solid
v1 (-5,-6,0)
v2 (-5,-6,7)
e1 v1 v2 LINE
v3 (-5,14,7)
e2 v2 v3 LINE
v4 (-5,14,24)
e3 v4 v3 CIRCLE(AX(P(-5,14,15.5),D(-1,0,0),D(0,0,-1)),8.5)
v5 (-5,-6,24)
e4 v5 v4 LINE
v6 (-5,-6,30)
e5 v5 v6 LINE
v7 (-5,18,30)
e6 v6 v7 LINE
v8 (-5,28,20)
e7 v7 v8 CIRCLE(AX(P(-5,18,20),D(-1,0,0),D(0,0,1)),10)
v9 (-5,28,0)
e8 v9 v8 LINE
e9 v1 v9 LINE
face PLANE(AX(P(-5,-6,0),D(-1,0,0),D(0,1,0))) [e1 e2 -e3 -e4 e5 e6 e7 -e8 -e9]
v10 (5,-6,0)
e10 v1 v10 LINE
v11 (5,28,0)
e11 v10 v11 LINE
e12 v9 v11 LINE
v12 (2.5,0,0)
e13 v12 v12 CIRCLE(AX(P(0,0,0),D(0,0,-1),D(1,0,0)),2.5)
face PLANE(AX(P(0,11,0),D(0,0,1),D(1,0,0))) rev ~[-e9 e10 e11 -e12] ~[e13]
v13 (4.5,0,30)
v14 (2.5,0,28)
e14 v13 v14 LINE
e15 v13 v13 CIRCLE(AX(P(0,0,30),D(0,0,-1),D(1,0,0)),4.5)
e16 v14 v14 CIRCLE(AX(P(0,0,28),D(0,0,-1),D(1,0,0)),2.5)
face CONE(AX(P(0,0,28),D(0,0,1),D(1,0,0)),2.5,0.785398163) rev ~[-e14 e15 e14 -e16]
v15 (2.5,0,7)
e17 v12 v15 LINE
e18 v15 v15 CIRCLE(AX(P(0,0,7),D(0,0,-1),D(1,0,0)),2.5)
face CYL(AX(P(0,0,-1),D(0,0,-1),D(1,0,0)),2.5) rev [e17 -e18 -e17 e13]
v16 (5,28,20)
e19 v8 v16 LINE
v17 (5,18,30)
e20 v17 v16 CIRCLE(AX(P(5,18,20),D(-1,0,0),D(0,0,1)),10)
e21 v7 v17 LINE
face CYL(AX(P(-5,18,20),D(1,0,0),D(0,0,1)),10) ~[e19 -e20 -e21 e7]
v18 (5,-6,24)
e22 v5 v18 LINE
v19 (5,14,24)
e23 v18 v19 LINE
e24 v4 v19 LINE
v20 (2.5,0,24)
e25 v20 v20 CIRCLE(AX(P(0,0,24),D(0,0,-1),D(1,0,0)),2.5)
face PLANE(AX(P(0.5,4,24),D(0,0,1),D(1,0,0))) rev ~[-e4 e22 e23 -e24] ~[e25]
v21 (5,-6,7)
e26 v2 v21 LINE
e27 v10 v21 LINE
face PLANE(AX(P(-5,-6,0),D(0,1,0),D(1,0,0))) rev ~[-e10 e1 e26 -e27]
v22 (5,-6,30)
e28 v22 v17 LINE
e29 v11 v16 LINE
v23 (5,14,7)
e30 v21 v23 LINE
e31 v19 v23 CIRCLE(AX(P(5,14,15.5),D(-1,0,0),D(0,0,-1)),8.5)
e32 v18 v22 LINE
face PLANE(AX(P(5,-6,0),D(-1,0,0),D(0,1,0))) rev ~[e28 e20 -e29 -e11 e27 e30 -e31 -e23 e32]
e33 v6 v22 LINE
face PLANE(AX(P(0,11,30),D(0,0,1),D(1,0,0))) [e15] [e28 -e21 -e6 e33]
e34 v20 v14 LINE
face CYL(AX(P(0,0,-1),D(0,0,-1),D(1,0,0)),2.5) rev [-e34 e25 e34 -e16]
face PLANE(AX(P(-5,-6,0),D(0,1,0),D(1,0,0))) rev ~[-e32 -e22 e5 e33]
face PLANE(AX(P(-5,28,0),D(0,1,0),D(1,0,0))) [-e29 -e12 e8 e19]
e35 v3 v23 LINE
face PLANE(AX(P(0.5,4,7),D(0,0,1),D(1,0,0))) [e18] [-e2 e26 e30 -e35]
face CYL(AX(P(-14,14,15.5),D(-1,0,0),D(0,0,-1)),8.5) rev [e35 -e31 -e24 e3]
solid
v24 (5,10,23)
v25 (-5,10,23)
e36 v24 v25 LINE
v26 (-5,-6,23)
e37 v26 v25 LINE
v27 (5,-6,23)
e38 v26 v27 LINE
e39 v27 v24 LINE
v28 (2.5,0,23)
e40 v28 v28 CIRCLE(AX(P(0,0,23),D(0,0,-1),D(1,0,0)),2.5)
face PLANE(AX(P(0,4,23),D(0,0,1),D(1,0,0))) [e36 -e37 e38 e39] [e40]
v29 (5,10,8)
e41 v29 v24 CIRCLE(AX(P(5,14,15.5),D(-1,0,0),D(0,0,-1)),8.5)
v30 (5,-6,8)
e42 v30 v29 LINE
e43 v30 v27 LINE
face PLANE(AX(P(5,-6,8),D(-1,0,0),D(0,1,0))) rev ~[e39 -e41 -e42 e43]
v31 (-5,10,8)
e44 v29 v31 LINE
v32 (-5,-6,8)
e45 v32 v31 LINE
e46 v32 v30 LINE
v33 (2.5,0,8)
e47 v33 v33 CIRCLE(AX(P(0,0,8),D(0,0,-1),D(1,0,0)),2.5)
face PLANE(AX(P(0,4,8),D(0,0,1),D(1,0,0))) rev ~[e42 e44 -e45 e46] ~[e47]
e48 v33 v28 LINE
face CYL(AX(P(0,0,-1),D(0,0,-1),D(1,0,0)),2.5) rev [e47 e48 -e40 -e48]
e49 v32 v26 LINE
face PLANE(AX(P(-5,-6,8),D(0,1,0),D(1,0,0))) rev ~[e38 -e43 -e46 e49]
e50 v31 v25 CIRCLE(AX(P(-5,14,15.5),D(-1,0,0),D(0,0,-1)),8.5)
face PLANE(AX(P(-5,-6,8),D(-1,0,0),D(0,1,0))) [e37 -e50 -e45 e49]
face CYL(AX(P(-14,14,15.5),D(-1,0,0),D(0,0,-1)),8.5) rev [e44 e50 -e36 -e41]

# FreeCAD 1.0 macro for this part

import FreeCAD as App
import Part
import Sketcher
from FreeCAD import Vector


def edges_at(feature, points):
    """Names of the edges that pass closest to the given points."""
    edges = feature.Shape.Edges
    near = lambda p: min(range(len(edges)), key=lambda i: edges[i].distToShape(Part.Vertex(*p))[0])
    return sorted({f"Edge{near(p) + 1}" for p in points})

doc = App.newDocument("Part")
body = doc.addObject("PartDesign::Body", "Body")

# Sketch on XY plane
sketch1 = doc.addObject("Sketcher::SketchObject", "Sketch")
body.addObject(sketch1)
sketch1.AttachmentSupport = (doc.XY_Plane, [""])
sketch1.MapMode = "FlatFace"
sketch1.addGeometry(Part.Circle(Vector(0, 0, 0), Vector(0, 0, 1), 8), False)
sketch1.addConstraint([
    Sketcher.Constraint("Coincident", 0, 3, -1, 1),
    Sketcher.Constraint("Diameter", 0, 17.0),
])
pad1 = doc.addObject("PartDesign::Pad", "Pad")
body.addObject(pad1)
pad1.Profile = sketch1
pad1.Length = 30
body2 = doc.addObject("PartDesign::Body", "Body001")
doc.recompute()

body.Placement = App.Placement(Vector(0, 0, 0), App.Rotation(Vector(0, 1, 0), 90))
boolean = doc.addObject("PartDesign::Boolean", "Boolean")
body2.addObject(boolean)
boolean.Type = "Fuse"
boolean.addObjects([body])
body3 = doc.addObject("PartDesign::Body", "Body002")
doc.recompute()

body2.Placement = App.Placement(Vector(-14, 14, 15.5), App.Rotation(Vector(0, 0, 1), 0))
boolean2 = doc.addObject("PartDesign::Boolean", "Boolean001")
body3.addObject(boolean2)
boolean2.Type = "Fuse"
boolean2.addObjects([body2])
body4 = doc.addObject("PartDesign::Body", "Body003")

# Sketch on XY plane
sketch2 = doc.addObject("Sketcher::SketchObject", "Sketch001")
body4.addObject(sketch2)
sketch2.AttachmentSupport = (doc.getObject("XY_Plane003"), [""])
sketch2.MapMode = "FlatFace"
sketch2.AttachmentOffset = App.Placement(Vector(0, 0, -1), App.Rotation())
sketch2.addGeometry(Part.Circle(Vector(0, 0, 0), Vector(0, 0, 1), 2.5), False)
sketch2.addConstraint([
    Sketcher.Constraint("Coincident", 0, 3, -1, 1),
    Sketcher.Constraint("Diameter", 0, 5.0),
])
pad2 = doc.addObject("PartDesign::Pad", "Pad001")
body4.addObject(pad2)
pad2.Profile = sketch2
pad2.Length = 37
body5 = doc.addObject("PartDesign::Body", "Body004")

# Sketch on XY plane
sketch3 = doc.addObject("Sketcher::SketchObject", "Sketch002")
body5.addObject(sketch3)
sketch3.AttachmentSupport = (doc.getObject("XY_Plane004"), [""])
sketch3.MapMode = "FlatFace"
sketch3.AttachmentOffset = App.Placement(Vector(0, 0, 7), App.Rotation())
sketch3.addGeometry([
    Part.LineSegment(Vector(-7, 14, 0), Vector(-7, -6, 0)),
    Part.LineSegment(Vector(-7, -6, 0), Vector(8, -6, 0)),
    Part.LineSegment(Vector(8, -6, 0), Vector(8, 14, 0)),
    Part.LineSegment(Vector(8, 14, 0), Vector(-7, 14, 0)),
], False)
sketch3.addConstraint([
    Sketcher.Constraint("Coincident", 0, 2, 1, 1),
    Sketcher.Constraint("Coincident", 1, 2, 2, 1),
    Sketcher.Constraint("Coincident", 2, 2, 3, 1),
    Sketcher.Constraint("Coincident", 3, 2, 0, 1),
    Sketcher.Constraint("Vertical", 0),
    Sketcher.Constraint("Horizontal", 1),
    Sketcher.Constraint("Vertical", 2),
    Sketcher.Constraint("Horizontal", 3),
    Sketcher.Constraint("DistanceX", 1, 1, 1, 2, 15.0),
    Sketcher.Constraint("DistanceY", 0, 2, 0, 1, 20.0),
    Sketcher.Constraint("DistanceX", 0, 2, -1, 1, 7.0),
    Sketcher.Constraint("DistanceY", 0, 2, -1, 1, 6.0),
])
pad3 = doc.addObject("PartDesign::Pad", "Pad002")
body5.addObject(pad3)
pad3.Profile = sketch3
pad3.Length = 17
doc.recompute()

boolean3 = doc.addObject("PartDesign::Boolean", "Boolean002")
body5.addObject(boolean3)
boolean3.Type = "Fuse"
boolean3.addObjects([body3])
doc.recompute()

boolean4 = doc.addObject("PartDesign::Boolean", "Boolean003")
body5.addObject(boolean4)
boolean4.Type = "Fuse"
boolean4.addObjects([body4])
body6 = doc.addObject("PartDesign::Body", "Body005")

# Sketch on XY plane
sketch4 = doc.addObject("Sketcher::SketchObject", "Sketch003")
body6.addObject(sketch4)
sketch4.AttachmentSupport = (doc.getObject("XY_Plane005"), [""])
sketch4.MapMode = "FlatFace"
sketch4.addGeometry([
    Part.LineSegment(Vector(-5, 28, 0), Vector(-5, -6, 0)),
    Part.LineSegment(Vector(-5, -6, 0), Vector(5, -6, 0)),
    Part.LineSegment(Vector(5, -6, 0), Vector(5, 28, 0)),
    Part.LineSegment(Vector(5, 28, 0), Vector(-5, 28, 0)),
], False)
sketch4.addConstraint([
    Sketcher.Constraint("Coincident", 0, 2, 1, 1),
    Sketcher.Constraint("Coincident", 1, 2, 2, 1),
    Sketcher.Constraint("Coincident", 2, 2, 3, 1),
    Sketcher.Constraint("Coincident", 3, 2, 0, 1),
    Sketcher.Constraint("Vertical", 0),
    Sketcher.Constraint("Horizontal", 1),
    Sketcher.Constraint("Vertical", 2),
    Sketcher.Constraint("Horizontal", 3),
    Sketcher.Constraint("DistanceX", 1, 1, 1, 2, 10.0),
    Sketcher.Constraint("DistanceY", 0, 2, 0, 1, 34.0),
    Sketcher.Constraint("DistanceX", 0, 2, -1, 1, 5.0),
    Sketcher.Constraint("DistanceY", 0, 2, -1, 1, 6.0),
])
pad4 = doc.addObject("PartDesign::Pad", "Pad003")
body6.addObject(pad4)
pad4.Profile = sketch4
pad4.Length = 30
doc.recompute()

boolean5 = doc.addObject("PartDesign::Boolean", "Boolean004")
body6.addObject(boolean5)
boolean5.Type = "Cut"
boolean5.addObjects([body5])
doc.recompute()

chamfer = doc.addObject("PartDesign::Chamfer", "Chamfer")
body6.addObject(chamfer)
chamfer.Base = (boolean5, edges_at(boolean5, [(-2.5, 0, 30)]))
chamfer.Size = 2
doc.recompute()

fillet = doc.addObject("PartDesign::Fillet", "Fillet")
body6.addObject(fillet)
fillet.Base = (chamfer, edges_at(chamfer, [(0, 28, 30)]))
fillet.Radius = 10
body7 = doc.addObject("PartDesign::Body", "Body006")

# Sketch on XY plane
sketch5 = doc.addObject("Sketcher::SketchObject", "Sketch004")
body7.addObject(sketch5)
sketch5.AttachmentSupport = (doc.getObject("XY_Plane006"), [""])
sketch5.MapMode = "FlatFace"
sketch5.AttachmentOffset = App.Placement(Vector(0, 0, -1), App.Rotation())
sketch5.addGeometry(Part.Circle(Vector(0, 0, 0), Vector(0, 0, 1), 2.5), False)
sketch5.addConstraint([
    Sketcher.Constraint("Coincident", 0, 3, -1, 1),
    Sketcher.Constraint("Diameter", 0, 5.0),
])
pad5 = doc.addObject("PartDesign::Pad", "Pad004")
body7.addObject(pad5)
pad5.Profile = sketch5
pad5.Length = 37
body8 = doc.addObject("PartDesign::Body", "Body007")

# Sketch on XY plane
sketch6 = doc.addObject("Sketcher::SketchObject", "Sketch005")
body8.addObject(sketch6)
sketch6.AttachmentSupport = (doc.getObject("XY_Plane007"), [""])
sketch6.MapMode = "FlatFace"
sketch6.addGeometry(Part.Circle(Vector(0, 0, 0), Vector(0, 0, 1), 8), False)
sketch6.addConstraint([
    Sketcher.Constraint("Coincident", 0, 3, -1, 1),
    Sketcher.Constraint("Diameter", 0, 17.0),
])
pad6 = doc.addObject("PartDesign::Pad", "Pad005")
body8.addObject(pad6)
pad6.Profile = sketch6
pad6.Length = 30
body9 = doc.addObject("PartDesign::Body", "Body008")
doc.recompute()

body8.Placement = App.Placement(Vector(0, 0, 0), App.Rotation(Vector(0, 1, 0), 90))
boolean6 = doc.addObject("PartDesign::Boolean", "Boolean005")
body9.addObject(boolean6)
boolean6.Type = "Fuse"
boolean6.addObjects([body8])
body10 = doc.addObject("PartDesign::Body", "Body009")
body10.AllowCompound = True
doc.recompute()

body9.Placement = App.Placement(Vector(-14, 14, 15.5), App.Rotation(Vector(0, 0, 1), 0))
boolean7 = doc.addObject("PartDesign::Boolean", "Boolean006")
body10.addObject(boolean7)
boolean7.Type = "Fuse"
boolean7.addObjects([body9])
doc.recompute()

boolean8 = doc.addObject("PartDesign::Boolean", "Boolean007")
body10.addObject(boolean8)
boolean8.Type = "Fuse"
boolean8.addObjects([body7])
body11 = doc.addObject("PartDesign::Body", "Body010")

# Sketch on XY plane
sketch7 = doc.addObject("Sketcher::SketchObject", "Sketch006")
body11.addObject(sketch7)
sketch7.AttachmentSupport = (doc.getObject("XY_Plane010"), [""])
sketch7.MapMode = "FlatFace"
sketch7.AttachmentOffset = App.Placement(Vector(0, 0, 8), App.Rotation())
sketch7.addGeometry([
    Part.LineSegment(Vector(-5, 14, 0), Vector(-5, -6, 0)),
    Part.LineSegment(Vector(-5, -6, 0), Vector(5, -6, 0)),
    Part.LineSegment(Vector(5, -6, 0), Vector(5, 14, 0)),
    Part.LineSegment(Vector(5, 14, 0), Vector(-5, 14, 0)),
], False)
sketch7.addConstraint([
    Sketcher.Constraint("Coincident", 0, 2, 1, 1),
    Sketcher.Constraint("Coincident", 1, 2, 2, 1),
    Sketcher.Constraint("Coincident", 2, 2, 3, 1),
    Sketcher.Constraint("Coincident", 3, 2, 0, 1),
    Sketcher.Constraint("Vertical", 0),
    Sketcher.Constraint("Horizontal", 1),
    Sketcher.Constraint("Vertical", 2),
    Sketcher.Constraint("Horizontal", 3),
    Sketcher.Constraint("DistanceX", 1, 1, 1, 2, 10.0),
    Sketcher.Constraint("DistanceY", 0, 2, 0, 1, 20.0),
    Sketcher.Constraint("DistanceX", 0, 2, -1, 1, 5.0),
    Sketcher.Constraint("DistanceY", 0, 2, -1, 1, 6.0),
])
pad7 = doc.addObject("PartDesign::Pad", "Pad006")
body11.addObject(pad7)
pad7.Profile = sketch7
pad7.Length = 15
doc.recompute()

boolean9 = doc.addObject("PartDesign::Boolean", "Boolean008")
body11.addObject(boolean9)
boolean9.Type = "Cut"
boolean9.addObjects([body10])

doc.recompute()
